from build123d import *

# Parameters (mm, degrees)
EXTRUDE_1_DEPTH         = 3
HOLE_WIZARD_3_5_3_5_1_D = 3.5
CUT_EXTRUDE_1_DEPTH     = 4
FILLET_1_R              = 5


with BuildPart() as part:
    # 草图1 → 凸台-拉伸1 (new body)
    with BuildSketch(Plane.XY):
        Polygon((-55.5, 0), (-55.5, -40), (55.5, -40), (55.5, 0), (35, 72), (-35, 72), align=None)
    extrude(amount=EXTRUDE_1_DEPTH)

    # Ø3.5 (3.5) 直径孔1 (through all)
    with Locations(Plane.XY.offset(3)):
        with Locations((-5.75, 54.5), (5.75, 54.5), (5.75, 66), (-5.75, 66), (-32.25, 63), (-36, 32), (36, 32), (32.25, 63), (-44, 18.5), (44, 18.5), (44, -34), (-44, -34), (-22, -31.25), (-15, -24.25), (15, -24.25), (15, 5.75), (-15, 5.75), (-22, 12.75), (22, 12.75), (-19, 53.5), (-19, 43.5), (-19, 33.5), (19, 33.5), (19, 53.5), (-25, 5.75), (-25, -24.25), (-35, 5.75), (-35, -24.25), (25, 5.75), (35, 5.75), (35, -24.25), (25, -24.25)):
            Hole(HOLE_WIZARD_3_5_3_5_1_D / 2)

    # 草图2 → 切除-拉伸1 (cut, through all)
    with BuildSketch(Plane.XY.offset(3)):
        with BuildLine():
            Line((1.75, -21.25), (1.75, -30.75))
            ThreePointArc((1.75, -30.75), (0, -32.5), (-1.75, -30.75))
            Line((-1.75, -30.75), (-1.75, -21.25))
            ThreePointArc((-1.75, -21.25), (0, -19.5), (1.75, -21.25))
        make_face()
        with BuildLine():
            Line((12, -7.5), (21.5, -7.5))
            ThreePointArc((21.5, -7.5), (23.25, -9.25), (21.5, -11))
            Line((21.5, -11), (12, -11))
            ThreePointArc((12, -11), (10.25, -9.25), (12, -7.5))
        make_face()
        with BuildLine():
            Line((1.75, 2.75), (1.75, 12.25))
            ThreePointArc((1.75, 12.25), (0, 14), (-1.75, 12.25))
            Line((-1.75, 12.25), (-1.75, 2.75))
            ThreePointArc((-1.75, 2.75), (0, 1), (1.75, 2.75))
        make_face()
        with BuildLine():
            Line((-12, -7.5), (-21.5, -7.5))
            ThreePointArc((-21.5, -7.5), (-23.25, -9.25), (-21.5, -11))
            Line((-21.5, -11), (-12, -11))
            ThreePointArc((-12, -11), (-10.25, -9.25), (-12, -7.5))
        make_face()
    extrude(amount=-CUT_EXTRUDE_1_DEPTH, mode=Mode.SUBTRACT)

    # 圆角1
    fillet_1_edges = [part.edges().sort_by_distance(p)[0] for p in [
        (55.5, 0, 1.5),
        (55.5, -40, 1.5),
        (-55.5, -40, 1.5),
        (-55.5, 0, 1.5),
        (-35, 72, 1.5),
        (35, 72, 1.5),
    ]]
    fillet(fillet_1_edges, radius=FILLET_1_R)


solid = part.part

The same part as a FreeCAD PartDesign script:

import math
import FreeCAD as App
import Part
import Sketcher


def edges_at(feature, points):
    """Names of the edges that pass closest to the given points."""
    edges = feature.Shape.Edges
    near = lambda p: min(range(len(edges)), key=lambda i: edges[i].distToShape(Part.Vertex(*p))[0])
    return sorted({f"Edge{near(p) + 1}" for p in points})

doc = App.newDocument("Part")
body = doc.addObject("PartDesign::Body", "Body")

# Sketch on XY plane
sketch1 = body.newObject("Sketcher::SketchObject", "Sketch")
sketch1.AttachmentSupport = (doc.getObject("XY_Plane"), [""])
sketch1.MapMode = "FlatFace"
sketch1.addGeometry(Part.LineSegment(App.Vector(-56, 0, 0), App.Vector(-56, -40, 0)), False)
sketch1.addGeometry(Part.LineSegment(App.Vector(-56, -40, 0), App.Vector(56, -40, 0)), False)
sketch1.addGeometry(Part.LineSegment(App.Vector(56, -40, 0), App.Vector(56, 0, 0)), False)
sketch1.addGeometry(Part.LineSegment(App.Vector(56, 0, 0), App.Vector(35, 72, 0)), False)
sketch1.addGeometry(Part.LineSegment(App.Vector(35, 72, 0), App.Vector(-35, 72, 0)), False)
sketch1.addGeometry(Part.LineSegment(App.Vector(-35, 72, 0), App.Vector(-56, 0, 0)), False)
sketch1.addConstraint(Sketcher.Constraint("Coincident", 0, 2, 1, 1))
sketch1.addConstraint(Sketcher.Constraint("Coincident", 1, 2, 2, 1))
sketch1.addConstraint(Sketcher.Constraint("Coincident", 2, 2, 3, 1))
sketch1.addConstraint(Sketcher.Constraint("Coincident", 3, 2, 4, 1))
sketch1.addConstraint(Sketcher.Constraint("Coincident", 4, 2, 5, 1))
sketch1.addConstraint(Sketcher.Constraint("Coincident", 5, 2, 0, 1))
sketch1.addConstraint(Sketcher.Constraint("Vertical", 0))
sketch1.addConstraint(Sketcher.Constraint("Horizontal", 1))
sketch1.addConstraint(Sketcher.Constraint("Vertical", 2))
sketch1.addConstraint(Sketcher.Constraint("Horizontal", 4))
sketch1.addConstraint(Sketcher.Constraint("Symmetric", 2, 2, 5, 2, -1, 1))
sketch1.addConstraint(Sketcher.Constraint("PointOnObject", 2, 2, -1))
sketch1.addConstraint(Sketcher.Constraint("Equal", 3, 5))
sketch1.addConstraint(Sketcher.Constraint("DistanceX", 1, 1, 1, 2, 111.0))
sketch1.addConstraint(Sketcher.Constraint("DistanceX", 4, 2, 4, 1, 70.0))
sketch1.addConstraint(Sketcher.Constraint("DistanceY", 0, 2, 0, 1, 40.0))
sketch1.addConstraint(Sketcher.Constraint("DistanceY", -1, 1, 3, 2, 72.0))
pad1 = body.newObject("PartDesign::Pad", "Pad")
pad1.Profile = sketch1
pad1.Length = 3

# Sketch on XY plane
sketch2 = body.newObject("Sketcher::SketchObject", "Sketch001")
sketch2.AttachmentSupport = (doc.getObject("XY_Plane"), [""])
sketch2.MapMode = "FlatFace"
sketch2.AttachmentOffset = App.Placement(App.Vector(0, 0, 3), App.Rotation())
sketch2.addGeometry(Part.Circle(App.Vector(-5.8, 54.5, 0), App.Vector(0, 0, 1), 1.8), False)
sketch2.addGeometry(Part.Circle(App.Vector(5.8, 54.5, 0), App.Vector(0, 0, 1), 1.8), False)
sketch2.addGeometry(Part.Circle(App.Vector(5.8, 66, 0), App.Vector(0, 0, 1), 1.8), False)
sketch2.addGeometry(Part.Circle(App.Vector(-5.8, 66, 0), App.Vector(0, 0, 1), 1.8), False)
sketch2.addGeometry(Part.Circle(App.Vector(-32.2, 63, 0), App.Vector(0, 0, 1), 1.8), False)
sketch2.addGeometry(Part.Circle(App.Vector(-36, 32, 0), App.Vector(0, 0, 1), 1.8), False)
sketch2.addGeometry(Part.Circle(App.Vector(36, 32, 0), App.Vector(0, 0, 1), 1.8), False)
sketch2.addGeometry(Part.Circle(App.Vector(32.2, 63, 0), App.Vector(0, 0, 1), 1.8), False)
sketch2.addGeometry(Part.Circle(App.Vector(-44, 18.5, 0), App.Vector(0, 0, 1), 1.8), False)
sketch2.addGeometry(Part.Circle(App.Vector(44, 18.5, 0), App.Vector(0, 0, 1), 1.8), False)
sketch2.addGeometry(Part.Circle(App.Vector(44, -34, 0), App.Vector(0, 0, 1), 1.8), False)
sketch2.addGeometry(Part.Circle(App.Vector(-44, -34, 0), App.Vector(0, 0, 1), 1.8), False)
sketch2.addGeometry(Part.Circle(App.Vector(-22, -31.2, 0), App.Vector(0, 0, 1), 1.8), False)
sketch2.addGeometry(Part.Circle(App.Vector(-15, -24.2, 0), App.Vector(0, 0, 1), 1.8), False)
sketch2.addGeometry(Part.Circle(App.Vector(15, -24.2, 0), App.Vector(0, 0, 1), 1.8), False)
sketch2.addGeometry(Part.Circle(App.Vector(15, 5.8, 0), App.Vector(0, 0, 1), 1.8), False)
sketch2.addGeometry(Part.Circle(App.Vector(-15, 5.8, 0), App.Vector(0, 0, 1), 1.8), False)
sketch2.addGeometry(Part.Circle(App.Vector(-22, 12.8, 0), App.Vector(0, 0, 1), 1.8), False)
sketch2.addGeometry(Part.Circle(App.Vector(22, 12.8, 0), App.Vector(0, 0, 1), 1.8), False)
sketch2.addGeometry(Part.Circle(App.Vector(-19, 53.5, 0), App.Vector(0, 0, 1), 1.8), False)
sketch2.addGeometry(Part.Circle(App.Vector(-19, 43.5, 0), App.Vector(0, 0, 1), 1.8), False)
sketch2.addGeometry(Part.Circle(App.Vector(-19, 33.5, 0), App.Vector(0, 0, 1), 1.8), False)
sketch2.addGeometry(Part.Circle(App.Vector(19, 33.5, 0), App.Vector(0, 0, 1), 1.8), False)
sketch2.addGeometry(Part.Circle(App.Vector(19, 53.5, 0), App.Vector(0, 0, 1), 1.8), False)
sketch2.addGeometry(Part.Circle(App.Vector(-25, 5.8, 0), App.Vector(0, 0, 1), 1.8), False)
sketch2.addGeometry(Part.Circle(App.Vector(-25, -24.2, 0), App.Vector(0, 0, 1), 1.8), False)
sketch2.addGeometry(Part.Circle(App.Vector(-35, 5.8, 0), App.Vector(0, 0, 1), 1.8), False)
sketch2.addGeometry(Part.Circle(App.Vector(-35, -24.2, 0), App.Vector(0, 0, 1), 1.8), False)
sketch2.addGeometry(Part.Circle(App.Vector(25, 5.8, 0), App.Vector(0, 0, 1), 1.8), False)
sketch2.addGeometry(Part.Circle(App.Vector(35, 5.8, 0), App.Vector(0, 0, 1), 1.8), False)
sketch2.addGeometry(Part.Circle(App.Vector(35, -24.2, 0), App.Vector(0, 0, 1), 1.8), False)
sketch2.addGeometry(Part.Circle(App.Vector(25, -24.2, 0), App.Vector(0, 0, 1), 1.8), False)
sketch2.addConstraint(Sketcher.Constraint("Equal", 0, 1))
sketch2.addConstraint(Sketcher.Constraint("Equal", 1, 2))
sketch2.addConstraint(Sketcher.Constraint("Equal", 2, 3))
sketch2.addConstraint(Sketcher.Constraint("Equal", 3, 4))
sketch2.addConstraint(Sketcher.Constraint("Equal", 4, 5))
sketch2.addConstraint(Sketcher.Constraint("Equal", 5, 6))
sketch2.addConstraint(Sketcher.Constraint("Equal", 6, 7))
sketch2.addConstraint(Sketcher.Constraint("Equal", 7, 8))
sketch2.addConstraint(Sketcher.Constraint("Equal", 8, 9))
sketch2.addConstraint(Sketcher.Constraint("Equal", 9, 10))
sketch2.addConstraint(Sketcher.Constraint("Equal", 10, 11))
sketch2.addConstraint(Sketcher.Constraint("Equal", 11, 12))
sketch2.addConstraint(Sketcher.Constraint("Equal", 12, 13))
sketch2.addConstraint(Sketcher.Constraint("Equal", 13, 14))
sketch2.addConstraint(Sketcher.Constraint("Equal", 14, 15))
sketch2.addConstraint(Sketcher.Constraint("Equal", 15, 16))
sketch2.addConstraint(Sketcher.Constraint("Equal", 16, 17))
sketch2.addConstraint(Sketcher.Constraint("Equal", 17, 18))
sketch2.addConstraint(Sketcher.Constraint("Equal", 18, 19))
sketch2.addConstraint(Sketcher.Constraint("Equal", 19, 20))
sketch2.addConstraint(Sketcher.Constraint("Equal", 20, 21))
sketch2.addConstraint(Sketcher.Constraint("Equal", 21, 22))
sketch2.addConstraint(Sketcher.Constraint("Equal", 22, 23))
sketch2.addConstraint(Sketcher.Constraint("Equal", 23, 24))
sketch2.addConstraint(Sketcher.Constraint("Equal", 24, 25))
sketch2.addConstraint(Sketcher.Constraint("Equal", 25, 26))
sketch2.addConstraint(Sketcher.Constraint("Equal", 26, 27))
sketch2.addConstraint(Sketcher.Constraint("Equal", 27, 28))
sketch2.addConstraint(Sketcher.Constraint("Equal", 28, 29))
sketch2.addConstraint(Sketcher.Constraint("Equal", 29, 30))
sketch2.addConstraint(Sketcher.Constraint("Equal", 30, 31))
sketch2.addConstraint(Sketcher.Constraint("Symmetric", 0, 3, 1, 3, -2))
sketch2.addConstraint(Sketcher.Constraint("Symmetric", 2, 3, 3, 3, -2))
sketch2.addConstraint(Sketcher.Constraint("Symmetric", 5, 3, 6, 3, -2))
sketch2.addConstraint(Sketcher.Constraint("Symmetric", 4, 3, 7, 3, -2))
sketch2.addConstraint(Sketcher.Constraint("Symmetric", 8, 3, 9, 3, -2))
sketch2.addConstraint(Sketcher.Constraint("Symmetric", 10, 3, 11, 3, -2))
sketch2.addConstraint(Sketcher.Constraint("Symmetric", 13, 3, 14, 3, -2))
sketch2.addConstraint(Sketcher.Constraint("Symmetric", 15, 3, 16, 3, -2))
sketch2.addConstraint(Sketcher.Constraint("Symmetric", 17, 3, 18, 3, -2))
sketch2.addConstraint(Sketcher.Constraint("Symmetric", 21, 3, 22, 3, -2))
sketch2.addConstraint(Sketcher.Constraint("Symmetric", 19, 3, 23, 3, -2))
sketch2.addConstraint(Sketcher.Constraint("Symmetric", 24, 3, 28, 3, -2))
sketch2.addConstraint(Sketcher.Constraint("Symmetric", 26, 3, 29, 3, -2))
sketch2.addConstraint(Sketcher.Constraint("Symmetric", 27, 3, 30, 3, -2))
sketch2.addConstraint(Sketcher.Constraint("Symmetric", 25, 3, 31, 3, -2))
sketch2.addConstraint(Sketcher.Constraint("Horizontal", 16, 3, 24, 3))
sketch2.addConstraint(Sketcher.Constraint("Horizontal", 14, 3, 25, 3))
sketch2.addConstraint(Sketcher.Constraint("Horizontal", 24, 3, 26, 3))
sketch2.addConstraint(Sketcher.Constraint("Horizontal", 25, 3, 27, 3))
sketch2.addConstraint(Sketcher.Constraint("Vertical", 1, 3, 2, 3))
sketch2.addConstraint(Sketcher.Constraint("Vertical", 9, 3, 10, 3))
sketch2.addConstraint(Sketcher.Constraint("Vertical", 14, 3, 15, 3))
sketch2.addConstraint(Sketcher.Constraint("Vertical", 12, 3, 17, 3))
sketch2.addConstraint(Sketcher.Constraint("Vertical", 19, 3, 20, 3))
sketch2.addConstraint(Sketcher.Constraint("Vertical", 20, 3, 21, 3))
sketch2.addConstraint(Sketcher.Constraint("Vertical", 24, 3, 25, 3))
sketch2.addConstraint(Sketcher.Constraint("Vertical", 26, 3, 27, 3))
sketch2.addConstraint(Sketcher.Constraint("Diameter", 0, 3.5))
sketch2.addConstraint(Sketcher.Constraint("DistanceY", -1, 1, 2, 3, 66.0))
sketch2.addConstraint(Sketcher.Constraint("DistanceY", -1, 1, 4, 3, 63.0))
sketch2.addConstraint(Sketcher.Constraint("DistanceX", 5, 3, -1, 1, 36.0))
sketch2.addConstraint(Sketcher.Constraint("DistanceY", -1, 1, 5, 3, 32.0))
sketch2.addConstraint(Sketcher.Constraint("DistanceX", 8, 3, -1, 1, 44.0))
sketch2.addConstraint(Sketcher.Constraint("DistanceY", 10, 3, -1, 1, 34.0))
sketch2.addConstraint(Sketcher.Constraint("DistanceX", 12, 3, -1, 1, 22.0))
sketch2.addConstraint(Sketcher.Constraint("DistanceX", 13, 3, -1, 1, 15.0))
sketch2.addConstraint(Sketcher.Constraint("DistanceX", 19, 3, -1, 1, 19.0))
sketch2.addConstraint(Sketcher.Constraint("DistanceX", 24, 3, -1, 1, 25.0))
sketch2.addConstraint(Sketcher.Constraint("DistanceX", 26, 3, -1, 1, 35.0))
sketch2.addConstraint(Sketcher.Constraint("DistanceX", 4, 3, 2, 3, 38.0))
sketch2.addConstraint(Sketcher.Constraint("DistanceY", 8, 3, 0, 3, 36.0))
sketch2.addConstraint(Sketcher.Constraint("DistanceY", 12, 3, 13, 3, 7.0))
sketch2.addConstraint(Sketcher.Constraint("DistanceY", 14, 3, 15, 3, 30.0))
sketch2.addConstraint(Sketcher.Constraint("DistanceY", 16, 3, 17, 3, 7.0))
sketch2.addConstraint(Sketcher.Constraint("DistanceY", 19, 3, 0, 3, 1.0))
sketch2.addConstraint(Sketcher.Constraint("DistanceY", 20, 3, 19, 3, 10.0))
sketch2.addConstraint(Sketcher.Constraint("DistanceY", 21, 3, 20, 3, 10.0))
sketch2.addConstraint(Sketcher.Constraint("DistanceY", -1, 1, 0, 3, 54.5))
sketch2.addConstraint(Sketcher.Constraint("DistanceX", 0, 3, 1, 3, 11.5))
sketch2.addConstraint(Sketcher.Constraint("DistanceY", 12, 3, -1, 1, 31.25))
doc.recompute()
hole = body.newObject("PartDesign::Hole", "Hole")
hole.Profile = sketch2
hole.ThreadType = "None"
hole.Diameter = 3.5
hole.DepthType = "ThroughAll"

# Sketch on XY plane
sketch3 = body.newObject("Sketcher::SketchObject", "Sketch002")
sketch3.AttachmentSupport = (doc.getObject("XY_Plane"), [""])
sketch3.MapMode = "FlatFace"
sketch3.AttachmentOffset = App.Placement(App.Vector(0, 0, 3), App.Rotation())
sketch3.addGeometry(Part.LineSegment(App.Vector(1.8, -30.8, 0), App.Vector(1.8, -21.2, 0)), False)
sketch3.addGeometry(Part.ArcOfCircle(Part.Circle(App.Vector(0, -21.2, 0), App.Vector(0, 0, 1), 1.8), math.radians(0), math.radians(180)), False)
sketch3.addGeometry(Part.LineSegment(App.Vector(-1.8, -21.2, 0), App.Vector(-1.8, -30.8, 0)), False)
sketch3.addGeometry(Part.ArcOfCircle(Part.Circle(App.Vector(0, -30.8, 0), App.Vector(0, 0, 1), 1.8), math.radians(180), math.radians(360)), False)
sketch3.addGeometry(Part.LineSegment(App.Vector(21.5, -7.5, 0), App.Vector(12, -7.5, 0)), False)
sketch3.addGeometry(Part.ArcOfCircle(Part.Circle(App.Vector(12, -9.2, 0), App.Vector(0, 0, 1), 1.8), math.radians(90), math.radians(270)), False)
sketch3.addGeometry(Part.LineSegment(App.Vector(12, -11, 0), App.Vector(21.5, -11, 0)), False)
sketch3.addGeometry(Part.ArcOfCircle(Part.Circle(App.Vector(21.5, -9.2, 0), App.Vector(0, 0, 1), 1.8), math.radians(-90), math.radians(90)), False)
sketch3.addGeometry(Part.LineSegment(App.Vector(1.8, 2.8, 0), App.Vector(1.8, 12.2, 0)), False)
sketch3.addGeometry(Part.ArcOfCircle(Part.Circle(App.Vector(0, 12.2, 0), App.Vector(0, 0, 1), 1.8), math.radians(0), math.radians(180)), False)
sketch3.addGeometry(Part.LineSegment(App.Vector(-1.8, 12.2, 0), App.Vector(-1.8, 2.8, 0)), False)
sketch3.addGeometry(Part.ArcOfCircle(Part.Circle(App.Vector(0, 2.8, 0), App.Vector(0, 0, 1), 1.8), math.radians(180), math.radians(360)), False)
sketch3.addGeometry(Part.LineSegment(App.Vector(-12, -7.5, 0), App.Vector(-21.5, -7.5, 0)), False)
sketch3.addGeometry(Part.ArcOfCircle(Part.Circle(App.Vector(-21.5, -9.2, 0), App.Vector(0, 0, 1), 1.8), math.radians(90), math.radians(270)), False)
sketch3.addGeometry(Part.LineSegment(App.Vector(-21.5, -11, 0), App.Vector(-12, -11, 0)), False)
sketch3.addGeometry(Part.ArcOfCircle(Part.Circle(App.Vector(-12, -9.2, 0), App.Vector(0, 0, 1), 1.8), math.radians(-90), math.radians(90)), False)
sketch3.addConstraint(Sketcher.Constraint("Tangent", 0, 2, 1, 1))
sketch3.addConstraint(Sketcher.Constraint("Tangent", 1, 2, 2, 1))
sketch3.addConstraint(Sketcher.Constraint("Tangent", 2, 2, 3, 1))
sketch3.addConstraint(Sketcher.Constraint("Tangent", 3, 2, 0, 1))
sketch3.addConstraint(Sketcher.Constraint("Tangent", 4, 2, 5, 1))
sketch3.addConstraint(Sketcher.Constraint("Tangent", 5, 2, 6, 1))
sketch3.addConstraint(Sketcher.Constraint("Tangent", 6, 2, 7, 1))
sketch3.addConstraint(Sketcher.Constraint("Tangent", 7, 2, 4, 1))
sketch3.addConstraint(Sketcher.Constraint("Tangent", 8, 2, 9, 1))
sketch3.addConstraint(Sketcher.Constraint("Tangent", 9, 2, 10, 1))
sketch3.addConstraint(Sketcher.Constraint("Tangent", 10, 2, 11, 1))
sketch3.addConstraint(Sketcher.Constraint("Tangent", 11, 2, 8, 1))
sketch3.addConstraint(Sketcher.Constraint("Tangent", 12, 2, 13, 1))
sketch3.addConstraint(Sketcher.Constraint("Tangent", 13, 2, 14, 1))
sketch3.addConstraint(Sketcher.Constraint("Tangent", 14, 2, 15, 1))
sketch3.addConstraint(Sketcher.Constraint("Tangent", 15, 2, 12, 1))
sketch3.addConstraint(Sketcher.Constraint("Vertical", 0))
sketch3.addConstraint(Sketcher.Constraint("Vertical", 2))
sketch3.addConstraint(Sketcher.Constraint("Horizontal", 4))
sketch3.addConstraint(Sketcher.Constraint("Horizontal", 6))
sketch3.addConstraint(Sketcher.Constraint("Vertical", 8))
sketch3.addConstraint(Sketcher.Constraint("Vertical", 10))
sketch3.addConstraint(Sketcher.Constraint("Horizontal", 12))
sketch3.addConstraint(Sketcher.Constraint("Horizontal", 14))
sketch3.addConstraint(Sketcher.Constraint("Equal", 3, 5))
sketch3.addConstraint(Sketcher.Constraint("Equal", 7, 9))
sketch3.addConstraint(Sketcher.Constraint("Equal", 11, 13))
sketch3.addConstraint(Sketcher.Constraint("Symmetric", 7, 3, 13, 3, -2))
sketch3.addConstraint(Sketcher.Constraint("PointOnObject", 1, 3, -2))
sketch3.addConstraint(Sketcher.Constraint("PointOnObject", 9, 3, -2))
sketch3.addConstraint(Sketcher.Constraint("Equal", 6, 12))
sketch3.addConstraint(Sketcher.Constraint("Equal", 14, 0))
sketch3.addConstraint(Sketcher.Constraint("Equal", 2, 8))
sketch3.addConstraint(Sketcher.Constraint("Radius", 1, 1.75))
sketch3.addConstraint(Sketcher.Constraint("DistanceX", 4, 2, 4, 1, 9.5))
sketch3.addConstraint(Sketcher.Constraint("DistanceX", -1, 1, 5, 3, 12.0))
sketch3.addConstraint(Sketcher.Constraint("DistanceY", 5, 2, -1, 1, 11.0))
sketch3.addConstraint(Sketcher.Constraint("DistanceY", 1, 3, 5, 3, 12.0))
sketch3.addConstraint(Sketcher.Constraint("DistanceY", 3, 3, 9, 3, 43.0))
pocket1 = body.newObject("PartDesign::Pocket", "Pocket")
pocket1.Profile = sketch3
pocket1.Type = "ThroughAll"
doc.recompute()

fillet = body.newObject("PartDesign::Fillet", "Fillet")
fillet.Base = (pocket1, edges_at(pocket1, [
    (55.5, 0, 1.5),
    (55.5, -40, 1.5),
    (-55.5, -40, 1.5),
    (-55.5, 0, 1.5),
    (-35, 72, 1.5),
    (35, 72, 1.5),
]))
fillet.Radius = 5

doc.recompute()
